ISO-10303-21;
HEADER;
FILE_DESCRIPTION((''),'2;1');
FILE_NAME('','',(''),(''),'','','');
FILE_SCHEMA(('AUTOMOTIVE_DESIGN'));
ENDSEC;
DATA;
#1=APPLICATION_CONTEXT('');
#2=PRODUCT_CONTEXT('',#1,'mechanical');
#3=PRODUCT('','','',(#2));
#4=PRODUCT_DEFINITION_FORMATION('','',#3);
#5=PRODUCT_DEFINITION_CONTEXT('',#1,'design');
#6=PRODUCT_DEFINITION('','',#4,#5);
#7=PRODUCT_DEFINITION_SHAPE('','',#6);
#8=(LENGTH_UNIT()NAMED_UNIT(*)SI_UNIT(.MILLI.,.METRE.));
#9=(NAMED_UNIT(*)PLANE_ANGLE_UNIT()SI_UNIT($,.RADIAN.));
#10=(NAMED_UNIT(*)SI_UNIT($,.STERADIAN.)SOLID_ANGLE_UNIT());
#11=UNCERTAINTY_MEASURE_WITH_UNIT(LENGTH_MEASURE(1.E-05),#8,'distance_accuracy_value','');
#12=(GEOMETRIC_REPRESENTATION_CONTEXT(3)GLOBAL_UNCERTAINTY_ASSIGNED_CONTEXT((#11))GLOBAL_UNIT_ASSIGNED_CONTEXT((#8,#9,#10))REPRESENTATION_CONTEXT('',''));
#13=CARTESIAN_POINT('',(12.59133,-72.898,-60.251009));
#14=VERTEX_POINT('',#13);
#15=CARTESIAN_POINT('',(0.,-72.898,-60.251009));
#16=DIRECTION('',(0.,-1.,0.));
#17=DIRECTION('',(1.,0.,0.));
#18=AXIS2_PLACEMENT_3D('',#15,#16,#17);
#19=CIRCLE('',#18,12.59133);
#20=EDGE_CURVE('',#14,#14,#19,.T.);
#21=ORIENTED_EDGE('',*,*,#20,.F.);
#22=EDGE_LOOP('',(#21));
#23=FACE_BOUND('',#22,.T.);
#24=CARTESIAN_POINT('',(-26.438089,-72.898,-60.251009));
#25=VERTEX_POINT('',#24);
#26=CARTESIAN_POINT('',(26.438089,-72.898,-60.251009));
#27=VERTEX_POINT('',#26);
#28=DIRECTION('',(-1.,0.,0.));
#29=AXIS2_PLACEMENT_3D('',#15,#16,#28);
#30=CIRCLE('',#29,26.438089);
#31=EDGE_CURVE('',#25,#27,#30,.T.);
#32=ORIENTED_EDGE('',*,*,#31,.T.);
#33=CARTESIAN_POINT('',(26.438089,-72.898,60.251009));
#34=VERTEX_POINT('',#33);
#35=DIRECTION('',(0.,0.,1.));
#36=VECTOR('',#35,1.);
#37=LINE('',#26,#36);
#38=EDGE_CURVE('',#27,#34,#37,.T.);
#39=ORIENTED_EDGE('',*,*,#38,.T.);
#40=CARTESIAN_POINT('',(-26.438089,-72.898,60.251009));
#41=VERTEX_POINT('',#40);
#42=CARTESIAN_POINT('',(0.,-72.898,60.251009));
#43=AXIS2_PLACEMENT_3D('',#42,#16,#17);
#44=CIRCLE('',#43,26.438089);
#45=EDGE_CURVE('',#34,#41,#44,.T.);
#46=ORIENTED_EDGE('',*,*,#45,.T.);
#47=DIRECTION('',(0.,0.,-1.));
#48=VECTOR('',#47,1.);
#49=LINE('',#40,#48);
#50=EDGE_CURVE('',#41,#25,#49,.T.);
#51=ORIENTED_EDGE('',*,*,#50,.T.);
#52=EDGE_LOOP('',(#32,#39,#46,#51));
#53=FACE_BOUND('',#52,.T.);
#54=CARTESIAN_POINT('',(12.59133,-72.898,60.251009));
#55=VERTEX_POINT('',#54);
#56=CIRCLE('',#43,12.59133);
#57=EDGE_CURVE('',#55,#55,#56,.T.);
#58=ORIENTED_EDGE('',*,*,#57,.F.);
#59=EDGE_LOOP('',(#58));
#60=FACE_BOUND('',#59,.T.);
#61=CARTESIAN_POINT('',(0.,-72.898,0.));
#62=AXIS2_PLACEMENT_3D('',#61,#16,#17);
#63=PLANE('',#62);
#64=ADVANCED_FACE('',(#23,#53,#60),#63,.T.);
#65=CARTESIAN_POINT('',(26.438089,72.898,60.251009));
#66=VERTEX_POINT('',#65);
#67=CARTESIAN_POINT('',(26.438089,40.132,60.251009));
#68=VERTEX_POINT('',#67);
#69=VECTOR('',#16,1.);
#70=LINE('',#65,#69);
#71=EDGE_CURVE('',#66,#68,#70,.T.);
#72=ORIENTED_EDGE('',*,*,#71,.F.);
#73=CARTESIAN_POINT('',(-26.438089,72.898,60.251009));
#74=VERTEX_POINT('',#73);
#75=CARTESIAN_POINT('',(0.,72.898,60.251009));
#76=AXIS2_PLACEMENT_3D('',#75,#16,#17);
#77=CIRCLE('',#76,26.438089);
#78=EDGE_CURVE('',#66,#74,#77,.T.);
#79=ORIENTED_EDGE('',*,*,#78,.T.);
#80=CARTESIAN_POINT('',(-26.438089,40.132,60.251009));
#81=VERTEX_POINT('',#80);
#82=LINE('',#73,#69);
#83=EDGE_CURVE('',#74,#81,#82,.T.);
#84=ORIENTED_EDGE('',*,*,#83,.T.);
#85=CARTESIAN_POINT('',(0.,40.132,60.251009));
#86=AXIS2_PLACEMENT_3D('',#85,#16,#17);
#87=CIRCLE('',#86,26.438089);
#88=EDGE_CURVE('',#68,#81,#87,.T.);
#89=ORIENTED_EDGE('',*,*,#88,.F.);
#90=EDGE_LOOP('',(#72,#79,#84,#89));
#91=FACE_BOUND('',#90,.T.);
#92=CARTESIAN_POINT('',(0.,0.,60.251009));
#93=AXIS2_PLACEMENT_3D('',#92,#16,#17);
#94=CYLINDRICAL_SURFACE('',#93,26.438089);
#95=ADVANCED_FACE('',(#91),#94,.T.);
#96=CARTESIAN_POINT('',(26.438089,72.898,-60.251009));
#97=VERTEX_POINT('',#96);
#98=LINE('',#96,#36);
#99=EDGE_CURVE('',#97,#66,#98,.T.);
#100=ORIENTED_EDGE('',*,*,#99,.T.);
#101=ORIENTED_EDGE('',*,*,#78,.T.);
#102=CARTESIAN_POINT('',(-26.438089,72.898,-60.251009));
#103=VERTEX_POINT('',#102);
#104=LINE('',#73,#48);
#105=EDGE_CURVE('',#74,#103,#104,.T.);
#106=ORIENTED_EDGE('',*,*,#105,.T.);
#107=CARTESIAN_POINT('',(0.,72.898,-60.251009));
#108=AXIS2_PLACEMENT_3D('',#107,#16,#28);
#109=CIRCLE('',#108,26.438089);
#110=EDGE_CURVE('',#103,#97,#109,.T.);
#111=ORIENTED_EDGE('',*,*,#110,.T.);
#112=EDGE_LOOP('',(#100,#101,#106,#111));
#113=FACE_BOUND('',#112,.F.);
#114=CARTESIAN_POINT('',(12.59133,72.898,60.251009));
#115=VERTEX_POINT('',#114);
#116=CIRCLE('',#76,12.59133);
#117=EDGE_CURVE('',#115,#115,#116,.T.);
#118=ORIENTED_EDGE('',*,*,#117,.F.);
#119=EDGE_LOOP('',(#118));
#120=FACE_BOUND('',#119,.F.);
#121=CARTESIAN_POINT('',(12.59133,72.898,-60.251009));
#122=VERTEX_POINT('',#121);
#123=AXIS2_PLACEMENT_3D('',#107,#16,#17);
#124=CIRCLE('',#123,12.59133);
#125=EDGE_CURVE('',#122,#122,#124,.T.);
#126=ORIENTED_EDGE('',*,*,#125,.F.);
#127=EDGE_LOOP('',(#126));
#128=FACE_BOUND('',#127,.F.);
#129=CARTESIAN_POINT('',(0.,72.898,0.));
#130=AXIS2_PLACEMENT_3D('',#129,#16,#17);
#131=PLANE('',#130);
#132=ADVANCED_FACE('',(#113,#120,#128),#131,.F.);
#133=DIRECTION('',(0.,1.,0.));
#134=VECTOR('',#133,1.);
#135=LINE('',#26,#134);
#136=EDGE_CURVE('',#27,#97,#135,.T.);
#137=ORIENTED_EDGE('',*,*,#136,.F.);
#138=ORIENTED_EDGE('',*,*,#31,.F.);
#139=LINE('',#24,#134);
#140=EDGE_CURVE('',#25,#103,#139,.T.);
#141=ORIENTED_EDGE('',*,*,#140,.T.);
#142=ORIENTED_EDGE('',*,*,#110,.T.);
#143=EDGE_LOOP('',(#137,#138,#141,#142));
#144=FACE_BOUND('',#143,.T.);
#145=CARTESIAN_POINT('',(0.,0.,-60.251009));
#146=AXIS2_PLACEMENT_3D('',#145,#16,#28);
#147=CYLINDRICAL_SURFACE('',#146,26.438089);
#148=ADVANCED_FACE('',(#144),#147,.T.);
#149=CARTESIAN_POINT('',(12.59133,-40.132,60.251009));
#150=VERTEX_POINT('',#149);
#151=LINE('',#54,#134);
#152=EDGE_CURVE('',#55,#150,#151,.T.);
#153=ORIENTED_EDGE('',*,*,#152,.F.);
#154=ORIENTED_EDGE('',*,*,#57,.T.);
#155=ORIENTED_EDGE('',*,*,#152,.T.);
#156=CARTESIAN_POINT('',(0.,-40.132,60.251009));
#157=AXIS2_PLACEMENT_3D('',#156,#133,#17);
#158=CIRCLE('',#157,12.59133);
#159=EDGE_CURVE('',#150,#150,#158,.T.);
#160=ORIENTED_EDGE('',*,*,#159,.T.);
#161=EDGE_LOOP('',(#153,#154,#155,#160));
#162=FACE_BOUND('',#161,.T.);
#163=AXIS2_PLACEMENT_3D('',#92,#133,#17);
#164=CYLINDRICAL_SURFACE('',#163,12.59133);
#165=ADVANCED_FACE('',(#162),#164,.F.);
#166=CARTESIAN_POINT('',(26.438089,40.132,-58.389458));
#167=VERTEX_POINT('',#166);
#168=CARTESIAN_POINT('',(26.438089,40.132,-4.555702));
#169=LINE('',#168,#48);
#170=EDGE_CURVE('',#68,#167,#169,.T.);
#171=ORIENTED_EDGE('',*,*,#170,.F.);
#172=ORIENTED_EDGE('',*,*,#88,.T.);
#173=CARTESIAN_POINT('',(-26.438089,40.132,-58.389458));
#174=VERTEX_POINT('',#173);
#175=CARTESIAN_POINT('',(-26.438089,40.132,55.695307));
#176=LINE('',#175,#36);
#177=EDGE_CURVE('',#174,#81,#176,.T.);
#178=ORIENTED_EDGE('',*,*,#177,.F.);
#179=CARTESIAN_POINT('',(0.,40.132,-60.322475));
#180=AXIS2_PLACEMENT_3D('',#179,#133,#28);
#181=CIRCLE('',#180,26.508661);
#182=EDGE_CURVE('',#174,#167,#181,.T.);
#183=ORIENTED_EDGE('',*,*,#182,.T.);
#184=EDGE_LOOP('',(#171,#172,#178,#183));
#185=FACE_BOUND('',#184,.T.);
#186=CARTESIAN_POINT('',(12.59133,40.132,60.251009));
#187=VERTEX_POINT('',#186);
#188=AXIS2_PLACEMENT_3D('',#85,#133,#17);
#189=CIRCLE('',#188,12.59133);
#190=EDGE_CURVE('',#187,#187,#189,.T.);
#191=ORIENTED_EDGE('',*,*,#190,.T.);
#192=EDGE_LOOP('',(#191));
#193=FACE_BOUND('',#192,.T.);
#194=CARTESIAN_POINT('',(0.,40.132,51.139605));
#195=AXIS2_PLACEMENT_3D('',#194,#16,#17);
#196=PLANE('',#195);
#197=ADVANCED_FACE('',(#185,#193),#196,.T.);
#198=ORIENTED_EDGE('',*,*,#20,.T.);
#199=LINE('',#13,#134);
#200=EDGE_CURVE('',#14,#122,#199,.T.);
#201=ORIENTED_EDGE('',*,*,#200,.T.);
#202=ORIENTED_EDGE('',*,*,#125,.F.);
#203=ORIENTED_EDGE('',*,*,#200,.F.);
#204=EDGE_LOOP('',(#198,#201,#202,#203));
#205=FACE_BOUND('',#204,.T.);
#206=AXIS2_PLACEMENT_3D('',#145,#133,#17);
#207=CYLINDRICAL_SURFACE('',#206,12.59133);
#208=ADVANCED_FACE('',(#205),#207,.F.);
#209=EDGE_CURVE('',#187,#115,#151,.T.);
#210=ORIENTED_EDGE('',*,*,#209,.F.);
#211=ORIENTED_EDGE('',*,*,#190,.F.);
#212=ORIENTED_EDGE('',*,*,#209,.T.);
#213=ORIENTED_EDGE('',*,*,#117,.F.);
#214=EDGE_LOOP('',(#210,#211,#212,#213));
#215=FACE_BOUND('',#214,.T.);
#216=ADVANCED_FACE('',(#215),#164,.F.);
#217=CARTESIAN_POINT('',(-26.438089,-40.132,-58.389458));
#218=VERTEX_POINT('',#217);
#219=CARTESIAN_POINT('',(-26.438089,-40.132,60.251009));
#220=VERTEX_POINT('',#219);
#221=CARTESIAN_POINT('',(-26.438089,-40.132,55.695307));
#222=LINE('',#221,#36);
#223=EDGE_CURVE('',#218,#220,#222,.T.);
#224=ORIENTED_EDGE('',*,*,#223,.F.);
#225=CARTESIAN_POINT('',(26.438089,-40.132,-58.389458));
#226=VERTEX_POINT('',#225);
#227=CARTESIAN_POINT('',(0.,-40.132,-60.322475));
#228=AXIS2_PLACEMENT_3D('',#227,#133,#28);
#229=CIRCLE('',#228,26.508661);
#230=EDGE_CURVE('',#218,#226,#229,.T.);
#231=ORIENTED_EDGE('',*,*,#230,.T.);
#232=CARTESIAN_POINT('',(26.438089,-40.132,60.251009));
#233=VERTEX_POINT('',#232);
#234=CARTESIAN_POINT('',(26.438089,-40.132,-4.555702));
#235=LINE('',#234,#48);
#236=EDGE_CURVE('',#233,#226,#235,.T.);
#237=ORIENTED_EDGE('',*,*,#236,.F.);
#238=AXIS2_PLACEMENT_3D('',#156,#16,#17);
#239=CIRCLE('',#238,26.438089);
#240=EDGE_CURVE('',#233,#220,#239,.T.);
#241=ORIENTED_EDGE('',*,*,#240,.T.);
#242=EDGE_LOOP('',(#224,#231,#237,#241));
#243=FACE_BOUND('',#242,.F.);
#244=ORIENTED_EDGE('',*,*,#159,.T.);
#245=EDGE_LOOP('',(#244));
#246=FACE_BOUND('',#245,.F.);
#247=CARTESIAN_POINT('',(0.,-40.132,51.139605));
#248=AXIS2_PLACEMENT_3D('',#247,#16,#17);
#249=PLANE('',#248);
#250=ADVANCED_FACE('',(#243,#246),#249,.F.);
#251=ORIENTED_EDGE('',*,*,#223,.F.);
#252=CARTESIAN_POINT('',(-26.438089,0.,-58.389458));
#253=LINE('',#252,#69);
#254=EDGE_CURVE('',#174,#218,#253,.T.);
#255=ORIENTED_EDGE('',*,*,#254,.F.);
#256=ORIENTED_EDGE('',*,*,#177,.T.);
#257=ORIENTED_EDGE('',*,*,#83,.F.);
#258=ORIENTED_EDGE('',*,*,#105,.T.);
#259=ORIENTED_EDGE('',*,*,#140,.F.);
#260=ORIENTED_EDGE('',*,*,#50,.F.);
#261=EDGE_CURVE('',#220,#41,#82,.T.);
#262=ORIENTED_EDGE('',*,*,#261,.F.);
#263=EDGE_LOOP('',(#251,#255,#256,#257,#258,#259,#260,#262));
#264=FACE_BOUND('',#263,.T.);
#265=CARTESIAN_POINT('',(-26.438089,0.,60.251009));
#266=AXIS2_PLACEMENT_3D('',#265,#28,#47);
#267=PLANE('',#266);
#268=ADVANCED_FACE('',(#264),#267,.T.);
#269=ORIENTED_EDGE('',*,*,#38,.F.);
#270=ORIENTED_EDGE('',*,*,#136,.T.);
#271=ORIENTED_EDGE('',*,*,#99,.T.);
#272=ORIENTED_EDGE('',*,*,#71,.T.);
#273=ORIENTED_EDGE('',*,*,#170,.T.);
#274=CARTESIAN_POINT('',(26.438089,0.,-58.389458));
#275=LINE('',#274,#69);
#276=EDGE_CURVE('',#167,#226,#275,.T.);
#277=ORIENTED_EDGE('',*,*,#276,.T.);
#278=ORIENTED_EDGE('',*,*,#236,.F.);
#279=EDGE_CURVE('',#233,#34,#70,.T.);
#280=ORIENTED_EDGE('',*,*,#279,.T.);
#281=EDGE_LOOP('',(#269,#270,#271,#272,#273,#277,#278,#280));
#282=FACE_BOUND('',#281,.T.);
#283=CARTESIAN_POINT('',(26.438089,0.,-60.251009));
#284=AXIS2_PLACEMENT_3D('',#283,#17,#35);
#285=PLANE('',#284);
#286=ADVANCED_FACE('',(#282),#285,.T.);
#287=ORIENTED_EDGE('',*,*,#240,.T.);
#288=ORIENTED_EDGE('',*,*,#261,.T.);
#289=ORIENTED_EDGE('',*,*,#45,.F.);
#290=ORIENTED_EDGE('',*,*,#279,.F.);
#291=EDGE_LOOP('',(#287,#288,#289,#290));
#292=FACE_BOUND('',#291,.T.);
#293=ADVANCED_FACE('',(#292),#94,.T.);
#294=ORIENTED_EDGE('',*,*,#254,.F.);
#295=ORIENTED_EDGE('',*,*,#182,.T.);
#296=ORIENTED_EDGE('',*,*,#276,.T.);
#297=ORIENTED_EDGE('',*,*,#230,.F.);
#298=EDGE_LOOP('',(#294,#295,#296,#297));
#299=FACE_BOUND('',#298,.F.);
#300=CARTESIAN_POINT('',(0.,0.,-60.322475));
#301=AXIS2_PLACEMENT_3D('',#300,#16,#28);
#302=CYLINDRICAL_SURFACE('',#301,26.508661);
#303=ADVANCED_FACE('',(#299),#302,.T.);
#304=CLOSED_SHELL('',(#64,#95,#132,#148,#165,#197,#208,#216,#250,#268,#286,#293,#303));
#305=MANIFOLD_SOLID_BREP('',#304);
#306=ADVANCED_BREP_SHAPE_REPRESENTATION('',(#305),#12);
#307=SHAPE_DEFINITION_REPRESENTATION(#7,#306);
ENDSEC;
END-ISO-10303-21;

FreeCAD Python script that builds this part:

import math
import FreeCAD as App
import Part
import Sketcher
Q = App.Units.Quantity

doc = App.newDocument("Part")
body = doc.addObject("PartDesign::Body", "Body")

# Sketch on XZ plane
sketch1 = doc.addObject("Sketcher::SketchObject", "Sketch")
body.addObject(sketch1)
sketch1.AttachmentSupport = (doc.XZ_Plane, [""])
sketch1.MapMode = "FlatFace"
sketch1.addGeometry([
    Part.LineSegment(App.Vector(26, -60, 0), App.Vector(26, 60, 0)),  # 0
    Part.ArcOfCircle(Part.Circle(App.Vector(0, 60, 0), App.Vector(0, 0, 1), 26), math.radians(0), math.radians(180)),  # 1
    Part.LineSegment(App.Vector(-26, 60, 0), App.Vector(-26, -60, 0)),  # 2
    Part.ArcOfCircle(Part.Circle(App.Vector(0, -60, 0), App.Vector(0, 0, 1), 26), math.radians(180), math.radians(360)),  # 3
    Part.Circle(App.Vector(0, -60, 0), App.Vector(0, 0, 1), 13),  # 4
    Part.Circle(App.Vector(0, 60, 0), App.Vector(0, 0, 1), 13),  # 5
], False)
sketch1.addConstraint([
    Sketcher.Constraint("Tangent", 0, 2, 1, 1),
    Sketcher.Constraint("Tangent", 1, 2, 2, 1),
    Sketcher.Constraint("Tangent", 2, 2, 3, 1),
    Sketcher.Constraint("Tangent", 3, 2, 0, 1),
    Sketcher.Constraint("Vertical", 0),
    Sketcher.Constraint("Vertical", 2),
    Sketcher.Constraint("Coincident", 4, 3, 3, 3),
    Sketcher.Constraint("Coincident", 5, 3, 1, 3),
    Sketcher.Constraint("Equal", 4, 5),
    Sketcher.Constraint("Symmetric", 1, 3, 3, 3, -1, 1),
    Sketcher.Constraint("Diameter", 4, 25.18266),
    Sketcher.Constraint("Radius", 1, 26.438089),
    Sketcher.Constraint("DistanceY", 0, 1, 0, 2, 120.502017),
])
pad1 = doc.addObject("PartDesign::Pad", "Pad")
body.addObject(pad1)
pad1.Profile = sketch1
pad1.Length = Q("5.74 in")
pad1.Midplane = True

# Sketch on XZ plane
sketch2 = doc.addObject("Sketcher::SketchObject", "Sketch001")
body.addObject(sketch2)
sketch2.AttachmentSupport = (doc.XZ_Plane, [""])
sketch2.MapMode = "FlatFace"
sketch2.addGeometry([
    Part.ArcOfCircle(Part.Circle(App.Vector(0, 60, 0), App.Vector(0, 0, 1), 27), math.radians(0), math.radians(180)),
    Part.LineSegment(App.Vector(-27, 60, 0), App.Vector(-27, -60, 0)),
    Part.ArcOfCircle(Part.Circle(App.Vector(0, -60, 0), App.Vector(0, 0, 1), 27), math.radians(0), math.radians(180)),
    Part.LineSegment(App.Vector(27, -60, 0), App.Vector(27, 60, 0)),
], False)
sketch2.addConstraint([
    Sketcher.Constraint("Tangent", 0, 2, 1, 1),
    Sketcher.Constraint("Tangent", 1, 2, 2, 2),
    Sketcher.Constraint("Tangent", 2, 1, 3, 1),
    Sketcher.Constraint("Tangent", 3, 2, 0, 1),
    Sketcher.Constraint("Vertical", 1),
    Sketcher.Constraint("Vertical", 3),
    Sketcher.Constraint("Symmetric", 0, 3, 2, 3, -1, 1),
    Sketcher.Constraint("Radius", 0, 26.508661),
    Sketcher.Constraint("DistanceY", 1, 2, 1, 1, 120.644949),
])
pocket1 = doc.addObject("PartDesign::Pocket", "Pocket")
body.addObject(pocket1)
pocket1.Profile = sketch2
pocket1.Length = Q("3.16 in")
pocket1.Midplane = True

doc.recompute()
